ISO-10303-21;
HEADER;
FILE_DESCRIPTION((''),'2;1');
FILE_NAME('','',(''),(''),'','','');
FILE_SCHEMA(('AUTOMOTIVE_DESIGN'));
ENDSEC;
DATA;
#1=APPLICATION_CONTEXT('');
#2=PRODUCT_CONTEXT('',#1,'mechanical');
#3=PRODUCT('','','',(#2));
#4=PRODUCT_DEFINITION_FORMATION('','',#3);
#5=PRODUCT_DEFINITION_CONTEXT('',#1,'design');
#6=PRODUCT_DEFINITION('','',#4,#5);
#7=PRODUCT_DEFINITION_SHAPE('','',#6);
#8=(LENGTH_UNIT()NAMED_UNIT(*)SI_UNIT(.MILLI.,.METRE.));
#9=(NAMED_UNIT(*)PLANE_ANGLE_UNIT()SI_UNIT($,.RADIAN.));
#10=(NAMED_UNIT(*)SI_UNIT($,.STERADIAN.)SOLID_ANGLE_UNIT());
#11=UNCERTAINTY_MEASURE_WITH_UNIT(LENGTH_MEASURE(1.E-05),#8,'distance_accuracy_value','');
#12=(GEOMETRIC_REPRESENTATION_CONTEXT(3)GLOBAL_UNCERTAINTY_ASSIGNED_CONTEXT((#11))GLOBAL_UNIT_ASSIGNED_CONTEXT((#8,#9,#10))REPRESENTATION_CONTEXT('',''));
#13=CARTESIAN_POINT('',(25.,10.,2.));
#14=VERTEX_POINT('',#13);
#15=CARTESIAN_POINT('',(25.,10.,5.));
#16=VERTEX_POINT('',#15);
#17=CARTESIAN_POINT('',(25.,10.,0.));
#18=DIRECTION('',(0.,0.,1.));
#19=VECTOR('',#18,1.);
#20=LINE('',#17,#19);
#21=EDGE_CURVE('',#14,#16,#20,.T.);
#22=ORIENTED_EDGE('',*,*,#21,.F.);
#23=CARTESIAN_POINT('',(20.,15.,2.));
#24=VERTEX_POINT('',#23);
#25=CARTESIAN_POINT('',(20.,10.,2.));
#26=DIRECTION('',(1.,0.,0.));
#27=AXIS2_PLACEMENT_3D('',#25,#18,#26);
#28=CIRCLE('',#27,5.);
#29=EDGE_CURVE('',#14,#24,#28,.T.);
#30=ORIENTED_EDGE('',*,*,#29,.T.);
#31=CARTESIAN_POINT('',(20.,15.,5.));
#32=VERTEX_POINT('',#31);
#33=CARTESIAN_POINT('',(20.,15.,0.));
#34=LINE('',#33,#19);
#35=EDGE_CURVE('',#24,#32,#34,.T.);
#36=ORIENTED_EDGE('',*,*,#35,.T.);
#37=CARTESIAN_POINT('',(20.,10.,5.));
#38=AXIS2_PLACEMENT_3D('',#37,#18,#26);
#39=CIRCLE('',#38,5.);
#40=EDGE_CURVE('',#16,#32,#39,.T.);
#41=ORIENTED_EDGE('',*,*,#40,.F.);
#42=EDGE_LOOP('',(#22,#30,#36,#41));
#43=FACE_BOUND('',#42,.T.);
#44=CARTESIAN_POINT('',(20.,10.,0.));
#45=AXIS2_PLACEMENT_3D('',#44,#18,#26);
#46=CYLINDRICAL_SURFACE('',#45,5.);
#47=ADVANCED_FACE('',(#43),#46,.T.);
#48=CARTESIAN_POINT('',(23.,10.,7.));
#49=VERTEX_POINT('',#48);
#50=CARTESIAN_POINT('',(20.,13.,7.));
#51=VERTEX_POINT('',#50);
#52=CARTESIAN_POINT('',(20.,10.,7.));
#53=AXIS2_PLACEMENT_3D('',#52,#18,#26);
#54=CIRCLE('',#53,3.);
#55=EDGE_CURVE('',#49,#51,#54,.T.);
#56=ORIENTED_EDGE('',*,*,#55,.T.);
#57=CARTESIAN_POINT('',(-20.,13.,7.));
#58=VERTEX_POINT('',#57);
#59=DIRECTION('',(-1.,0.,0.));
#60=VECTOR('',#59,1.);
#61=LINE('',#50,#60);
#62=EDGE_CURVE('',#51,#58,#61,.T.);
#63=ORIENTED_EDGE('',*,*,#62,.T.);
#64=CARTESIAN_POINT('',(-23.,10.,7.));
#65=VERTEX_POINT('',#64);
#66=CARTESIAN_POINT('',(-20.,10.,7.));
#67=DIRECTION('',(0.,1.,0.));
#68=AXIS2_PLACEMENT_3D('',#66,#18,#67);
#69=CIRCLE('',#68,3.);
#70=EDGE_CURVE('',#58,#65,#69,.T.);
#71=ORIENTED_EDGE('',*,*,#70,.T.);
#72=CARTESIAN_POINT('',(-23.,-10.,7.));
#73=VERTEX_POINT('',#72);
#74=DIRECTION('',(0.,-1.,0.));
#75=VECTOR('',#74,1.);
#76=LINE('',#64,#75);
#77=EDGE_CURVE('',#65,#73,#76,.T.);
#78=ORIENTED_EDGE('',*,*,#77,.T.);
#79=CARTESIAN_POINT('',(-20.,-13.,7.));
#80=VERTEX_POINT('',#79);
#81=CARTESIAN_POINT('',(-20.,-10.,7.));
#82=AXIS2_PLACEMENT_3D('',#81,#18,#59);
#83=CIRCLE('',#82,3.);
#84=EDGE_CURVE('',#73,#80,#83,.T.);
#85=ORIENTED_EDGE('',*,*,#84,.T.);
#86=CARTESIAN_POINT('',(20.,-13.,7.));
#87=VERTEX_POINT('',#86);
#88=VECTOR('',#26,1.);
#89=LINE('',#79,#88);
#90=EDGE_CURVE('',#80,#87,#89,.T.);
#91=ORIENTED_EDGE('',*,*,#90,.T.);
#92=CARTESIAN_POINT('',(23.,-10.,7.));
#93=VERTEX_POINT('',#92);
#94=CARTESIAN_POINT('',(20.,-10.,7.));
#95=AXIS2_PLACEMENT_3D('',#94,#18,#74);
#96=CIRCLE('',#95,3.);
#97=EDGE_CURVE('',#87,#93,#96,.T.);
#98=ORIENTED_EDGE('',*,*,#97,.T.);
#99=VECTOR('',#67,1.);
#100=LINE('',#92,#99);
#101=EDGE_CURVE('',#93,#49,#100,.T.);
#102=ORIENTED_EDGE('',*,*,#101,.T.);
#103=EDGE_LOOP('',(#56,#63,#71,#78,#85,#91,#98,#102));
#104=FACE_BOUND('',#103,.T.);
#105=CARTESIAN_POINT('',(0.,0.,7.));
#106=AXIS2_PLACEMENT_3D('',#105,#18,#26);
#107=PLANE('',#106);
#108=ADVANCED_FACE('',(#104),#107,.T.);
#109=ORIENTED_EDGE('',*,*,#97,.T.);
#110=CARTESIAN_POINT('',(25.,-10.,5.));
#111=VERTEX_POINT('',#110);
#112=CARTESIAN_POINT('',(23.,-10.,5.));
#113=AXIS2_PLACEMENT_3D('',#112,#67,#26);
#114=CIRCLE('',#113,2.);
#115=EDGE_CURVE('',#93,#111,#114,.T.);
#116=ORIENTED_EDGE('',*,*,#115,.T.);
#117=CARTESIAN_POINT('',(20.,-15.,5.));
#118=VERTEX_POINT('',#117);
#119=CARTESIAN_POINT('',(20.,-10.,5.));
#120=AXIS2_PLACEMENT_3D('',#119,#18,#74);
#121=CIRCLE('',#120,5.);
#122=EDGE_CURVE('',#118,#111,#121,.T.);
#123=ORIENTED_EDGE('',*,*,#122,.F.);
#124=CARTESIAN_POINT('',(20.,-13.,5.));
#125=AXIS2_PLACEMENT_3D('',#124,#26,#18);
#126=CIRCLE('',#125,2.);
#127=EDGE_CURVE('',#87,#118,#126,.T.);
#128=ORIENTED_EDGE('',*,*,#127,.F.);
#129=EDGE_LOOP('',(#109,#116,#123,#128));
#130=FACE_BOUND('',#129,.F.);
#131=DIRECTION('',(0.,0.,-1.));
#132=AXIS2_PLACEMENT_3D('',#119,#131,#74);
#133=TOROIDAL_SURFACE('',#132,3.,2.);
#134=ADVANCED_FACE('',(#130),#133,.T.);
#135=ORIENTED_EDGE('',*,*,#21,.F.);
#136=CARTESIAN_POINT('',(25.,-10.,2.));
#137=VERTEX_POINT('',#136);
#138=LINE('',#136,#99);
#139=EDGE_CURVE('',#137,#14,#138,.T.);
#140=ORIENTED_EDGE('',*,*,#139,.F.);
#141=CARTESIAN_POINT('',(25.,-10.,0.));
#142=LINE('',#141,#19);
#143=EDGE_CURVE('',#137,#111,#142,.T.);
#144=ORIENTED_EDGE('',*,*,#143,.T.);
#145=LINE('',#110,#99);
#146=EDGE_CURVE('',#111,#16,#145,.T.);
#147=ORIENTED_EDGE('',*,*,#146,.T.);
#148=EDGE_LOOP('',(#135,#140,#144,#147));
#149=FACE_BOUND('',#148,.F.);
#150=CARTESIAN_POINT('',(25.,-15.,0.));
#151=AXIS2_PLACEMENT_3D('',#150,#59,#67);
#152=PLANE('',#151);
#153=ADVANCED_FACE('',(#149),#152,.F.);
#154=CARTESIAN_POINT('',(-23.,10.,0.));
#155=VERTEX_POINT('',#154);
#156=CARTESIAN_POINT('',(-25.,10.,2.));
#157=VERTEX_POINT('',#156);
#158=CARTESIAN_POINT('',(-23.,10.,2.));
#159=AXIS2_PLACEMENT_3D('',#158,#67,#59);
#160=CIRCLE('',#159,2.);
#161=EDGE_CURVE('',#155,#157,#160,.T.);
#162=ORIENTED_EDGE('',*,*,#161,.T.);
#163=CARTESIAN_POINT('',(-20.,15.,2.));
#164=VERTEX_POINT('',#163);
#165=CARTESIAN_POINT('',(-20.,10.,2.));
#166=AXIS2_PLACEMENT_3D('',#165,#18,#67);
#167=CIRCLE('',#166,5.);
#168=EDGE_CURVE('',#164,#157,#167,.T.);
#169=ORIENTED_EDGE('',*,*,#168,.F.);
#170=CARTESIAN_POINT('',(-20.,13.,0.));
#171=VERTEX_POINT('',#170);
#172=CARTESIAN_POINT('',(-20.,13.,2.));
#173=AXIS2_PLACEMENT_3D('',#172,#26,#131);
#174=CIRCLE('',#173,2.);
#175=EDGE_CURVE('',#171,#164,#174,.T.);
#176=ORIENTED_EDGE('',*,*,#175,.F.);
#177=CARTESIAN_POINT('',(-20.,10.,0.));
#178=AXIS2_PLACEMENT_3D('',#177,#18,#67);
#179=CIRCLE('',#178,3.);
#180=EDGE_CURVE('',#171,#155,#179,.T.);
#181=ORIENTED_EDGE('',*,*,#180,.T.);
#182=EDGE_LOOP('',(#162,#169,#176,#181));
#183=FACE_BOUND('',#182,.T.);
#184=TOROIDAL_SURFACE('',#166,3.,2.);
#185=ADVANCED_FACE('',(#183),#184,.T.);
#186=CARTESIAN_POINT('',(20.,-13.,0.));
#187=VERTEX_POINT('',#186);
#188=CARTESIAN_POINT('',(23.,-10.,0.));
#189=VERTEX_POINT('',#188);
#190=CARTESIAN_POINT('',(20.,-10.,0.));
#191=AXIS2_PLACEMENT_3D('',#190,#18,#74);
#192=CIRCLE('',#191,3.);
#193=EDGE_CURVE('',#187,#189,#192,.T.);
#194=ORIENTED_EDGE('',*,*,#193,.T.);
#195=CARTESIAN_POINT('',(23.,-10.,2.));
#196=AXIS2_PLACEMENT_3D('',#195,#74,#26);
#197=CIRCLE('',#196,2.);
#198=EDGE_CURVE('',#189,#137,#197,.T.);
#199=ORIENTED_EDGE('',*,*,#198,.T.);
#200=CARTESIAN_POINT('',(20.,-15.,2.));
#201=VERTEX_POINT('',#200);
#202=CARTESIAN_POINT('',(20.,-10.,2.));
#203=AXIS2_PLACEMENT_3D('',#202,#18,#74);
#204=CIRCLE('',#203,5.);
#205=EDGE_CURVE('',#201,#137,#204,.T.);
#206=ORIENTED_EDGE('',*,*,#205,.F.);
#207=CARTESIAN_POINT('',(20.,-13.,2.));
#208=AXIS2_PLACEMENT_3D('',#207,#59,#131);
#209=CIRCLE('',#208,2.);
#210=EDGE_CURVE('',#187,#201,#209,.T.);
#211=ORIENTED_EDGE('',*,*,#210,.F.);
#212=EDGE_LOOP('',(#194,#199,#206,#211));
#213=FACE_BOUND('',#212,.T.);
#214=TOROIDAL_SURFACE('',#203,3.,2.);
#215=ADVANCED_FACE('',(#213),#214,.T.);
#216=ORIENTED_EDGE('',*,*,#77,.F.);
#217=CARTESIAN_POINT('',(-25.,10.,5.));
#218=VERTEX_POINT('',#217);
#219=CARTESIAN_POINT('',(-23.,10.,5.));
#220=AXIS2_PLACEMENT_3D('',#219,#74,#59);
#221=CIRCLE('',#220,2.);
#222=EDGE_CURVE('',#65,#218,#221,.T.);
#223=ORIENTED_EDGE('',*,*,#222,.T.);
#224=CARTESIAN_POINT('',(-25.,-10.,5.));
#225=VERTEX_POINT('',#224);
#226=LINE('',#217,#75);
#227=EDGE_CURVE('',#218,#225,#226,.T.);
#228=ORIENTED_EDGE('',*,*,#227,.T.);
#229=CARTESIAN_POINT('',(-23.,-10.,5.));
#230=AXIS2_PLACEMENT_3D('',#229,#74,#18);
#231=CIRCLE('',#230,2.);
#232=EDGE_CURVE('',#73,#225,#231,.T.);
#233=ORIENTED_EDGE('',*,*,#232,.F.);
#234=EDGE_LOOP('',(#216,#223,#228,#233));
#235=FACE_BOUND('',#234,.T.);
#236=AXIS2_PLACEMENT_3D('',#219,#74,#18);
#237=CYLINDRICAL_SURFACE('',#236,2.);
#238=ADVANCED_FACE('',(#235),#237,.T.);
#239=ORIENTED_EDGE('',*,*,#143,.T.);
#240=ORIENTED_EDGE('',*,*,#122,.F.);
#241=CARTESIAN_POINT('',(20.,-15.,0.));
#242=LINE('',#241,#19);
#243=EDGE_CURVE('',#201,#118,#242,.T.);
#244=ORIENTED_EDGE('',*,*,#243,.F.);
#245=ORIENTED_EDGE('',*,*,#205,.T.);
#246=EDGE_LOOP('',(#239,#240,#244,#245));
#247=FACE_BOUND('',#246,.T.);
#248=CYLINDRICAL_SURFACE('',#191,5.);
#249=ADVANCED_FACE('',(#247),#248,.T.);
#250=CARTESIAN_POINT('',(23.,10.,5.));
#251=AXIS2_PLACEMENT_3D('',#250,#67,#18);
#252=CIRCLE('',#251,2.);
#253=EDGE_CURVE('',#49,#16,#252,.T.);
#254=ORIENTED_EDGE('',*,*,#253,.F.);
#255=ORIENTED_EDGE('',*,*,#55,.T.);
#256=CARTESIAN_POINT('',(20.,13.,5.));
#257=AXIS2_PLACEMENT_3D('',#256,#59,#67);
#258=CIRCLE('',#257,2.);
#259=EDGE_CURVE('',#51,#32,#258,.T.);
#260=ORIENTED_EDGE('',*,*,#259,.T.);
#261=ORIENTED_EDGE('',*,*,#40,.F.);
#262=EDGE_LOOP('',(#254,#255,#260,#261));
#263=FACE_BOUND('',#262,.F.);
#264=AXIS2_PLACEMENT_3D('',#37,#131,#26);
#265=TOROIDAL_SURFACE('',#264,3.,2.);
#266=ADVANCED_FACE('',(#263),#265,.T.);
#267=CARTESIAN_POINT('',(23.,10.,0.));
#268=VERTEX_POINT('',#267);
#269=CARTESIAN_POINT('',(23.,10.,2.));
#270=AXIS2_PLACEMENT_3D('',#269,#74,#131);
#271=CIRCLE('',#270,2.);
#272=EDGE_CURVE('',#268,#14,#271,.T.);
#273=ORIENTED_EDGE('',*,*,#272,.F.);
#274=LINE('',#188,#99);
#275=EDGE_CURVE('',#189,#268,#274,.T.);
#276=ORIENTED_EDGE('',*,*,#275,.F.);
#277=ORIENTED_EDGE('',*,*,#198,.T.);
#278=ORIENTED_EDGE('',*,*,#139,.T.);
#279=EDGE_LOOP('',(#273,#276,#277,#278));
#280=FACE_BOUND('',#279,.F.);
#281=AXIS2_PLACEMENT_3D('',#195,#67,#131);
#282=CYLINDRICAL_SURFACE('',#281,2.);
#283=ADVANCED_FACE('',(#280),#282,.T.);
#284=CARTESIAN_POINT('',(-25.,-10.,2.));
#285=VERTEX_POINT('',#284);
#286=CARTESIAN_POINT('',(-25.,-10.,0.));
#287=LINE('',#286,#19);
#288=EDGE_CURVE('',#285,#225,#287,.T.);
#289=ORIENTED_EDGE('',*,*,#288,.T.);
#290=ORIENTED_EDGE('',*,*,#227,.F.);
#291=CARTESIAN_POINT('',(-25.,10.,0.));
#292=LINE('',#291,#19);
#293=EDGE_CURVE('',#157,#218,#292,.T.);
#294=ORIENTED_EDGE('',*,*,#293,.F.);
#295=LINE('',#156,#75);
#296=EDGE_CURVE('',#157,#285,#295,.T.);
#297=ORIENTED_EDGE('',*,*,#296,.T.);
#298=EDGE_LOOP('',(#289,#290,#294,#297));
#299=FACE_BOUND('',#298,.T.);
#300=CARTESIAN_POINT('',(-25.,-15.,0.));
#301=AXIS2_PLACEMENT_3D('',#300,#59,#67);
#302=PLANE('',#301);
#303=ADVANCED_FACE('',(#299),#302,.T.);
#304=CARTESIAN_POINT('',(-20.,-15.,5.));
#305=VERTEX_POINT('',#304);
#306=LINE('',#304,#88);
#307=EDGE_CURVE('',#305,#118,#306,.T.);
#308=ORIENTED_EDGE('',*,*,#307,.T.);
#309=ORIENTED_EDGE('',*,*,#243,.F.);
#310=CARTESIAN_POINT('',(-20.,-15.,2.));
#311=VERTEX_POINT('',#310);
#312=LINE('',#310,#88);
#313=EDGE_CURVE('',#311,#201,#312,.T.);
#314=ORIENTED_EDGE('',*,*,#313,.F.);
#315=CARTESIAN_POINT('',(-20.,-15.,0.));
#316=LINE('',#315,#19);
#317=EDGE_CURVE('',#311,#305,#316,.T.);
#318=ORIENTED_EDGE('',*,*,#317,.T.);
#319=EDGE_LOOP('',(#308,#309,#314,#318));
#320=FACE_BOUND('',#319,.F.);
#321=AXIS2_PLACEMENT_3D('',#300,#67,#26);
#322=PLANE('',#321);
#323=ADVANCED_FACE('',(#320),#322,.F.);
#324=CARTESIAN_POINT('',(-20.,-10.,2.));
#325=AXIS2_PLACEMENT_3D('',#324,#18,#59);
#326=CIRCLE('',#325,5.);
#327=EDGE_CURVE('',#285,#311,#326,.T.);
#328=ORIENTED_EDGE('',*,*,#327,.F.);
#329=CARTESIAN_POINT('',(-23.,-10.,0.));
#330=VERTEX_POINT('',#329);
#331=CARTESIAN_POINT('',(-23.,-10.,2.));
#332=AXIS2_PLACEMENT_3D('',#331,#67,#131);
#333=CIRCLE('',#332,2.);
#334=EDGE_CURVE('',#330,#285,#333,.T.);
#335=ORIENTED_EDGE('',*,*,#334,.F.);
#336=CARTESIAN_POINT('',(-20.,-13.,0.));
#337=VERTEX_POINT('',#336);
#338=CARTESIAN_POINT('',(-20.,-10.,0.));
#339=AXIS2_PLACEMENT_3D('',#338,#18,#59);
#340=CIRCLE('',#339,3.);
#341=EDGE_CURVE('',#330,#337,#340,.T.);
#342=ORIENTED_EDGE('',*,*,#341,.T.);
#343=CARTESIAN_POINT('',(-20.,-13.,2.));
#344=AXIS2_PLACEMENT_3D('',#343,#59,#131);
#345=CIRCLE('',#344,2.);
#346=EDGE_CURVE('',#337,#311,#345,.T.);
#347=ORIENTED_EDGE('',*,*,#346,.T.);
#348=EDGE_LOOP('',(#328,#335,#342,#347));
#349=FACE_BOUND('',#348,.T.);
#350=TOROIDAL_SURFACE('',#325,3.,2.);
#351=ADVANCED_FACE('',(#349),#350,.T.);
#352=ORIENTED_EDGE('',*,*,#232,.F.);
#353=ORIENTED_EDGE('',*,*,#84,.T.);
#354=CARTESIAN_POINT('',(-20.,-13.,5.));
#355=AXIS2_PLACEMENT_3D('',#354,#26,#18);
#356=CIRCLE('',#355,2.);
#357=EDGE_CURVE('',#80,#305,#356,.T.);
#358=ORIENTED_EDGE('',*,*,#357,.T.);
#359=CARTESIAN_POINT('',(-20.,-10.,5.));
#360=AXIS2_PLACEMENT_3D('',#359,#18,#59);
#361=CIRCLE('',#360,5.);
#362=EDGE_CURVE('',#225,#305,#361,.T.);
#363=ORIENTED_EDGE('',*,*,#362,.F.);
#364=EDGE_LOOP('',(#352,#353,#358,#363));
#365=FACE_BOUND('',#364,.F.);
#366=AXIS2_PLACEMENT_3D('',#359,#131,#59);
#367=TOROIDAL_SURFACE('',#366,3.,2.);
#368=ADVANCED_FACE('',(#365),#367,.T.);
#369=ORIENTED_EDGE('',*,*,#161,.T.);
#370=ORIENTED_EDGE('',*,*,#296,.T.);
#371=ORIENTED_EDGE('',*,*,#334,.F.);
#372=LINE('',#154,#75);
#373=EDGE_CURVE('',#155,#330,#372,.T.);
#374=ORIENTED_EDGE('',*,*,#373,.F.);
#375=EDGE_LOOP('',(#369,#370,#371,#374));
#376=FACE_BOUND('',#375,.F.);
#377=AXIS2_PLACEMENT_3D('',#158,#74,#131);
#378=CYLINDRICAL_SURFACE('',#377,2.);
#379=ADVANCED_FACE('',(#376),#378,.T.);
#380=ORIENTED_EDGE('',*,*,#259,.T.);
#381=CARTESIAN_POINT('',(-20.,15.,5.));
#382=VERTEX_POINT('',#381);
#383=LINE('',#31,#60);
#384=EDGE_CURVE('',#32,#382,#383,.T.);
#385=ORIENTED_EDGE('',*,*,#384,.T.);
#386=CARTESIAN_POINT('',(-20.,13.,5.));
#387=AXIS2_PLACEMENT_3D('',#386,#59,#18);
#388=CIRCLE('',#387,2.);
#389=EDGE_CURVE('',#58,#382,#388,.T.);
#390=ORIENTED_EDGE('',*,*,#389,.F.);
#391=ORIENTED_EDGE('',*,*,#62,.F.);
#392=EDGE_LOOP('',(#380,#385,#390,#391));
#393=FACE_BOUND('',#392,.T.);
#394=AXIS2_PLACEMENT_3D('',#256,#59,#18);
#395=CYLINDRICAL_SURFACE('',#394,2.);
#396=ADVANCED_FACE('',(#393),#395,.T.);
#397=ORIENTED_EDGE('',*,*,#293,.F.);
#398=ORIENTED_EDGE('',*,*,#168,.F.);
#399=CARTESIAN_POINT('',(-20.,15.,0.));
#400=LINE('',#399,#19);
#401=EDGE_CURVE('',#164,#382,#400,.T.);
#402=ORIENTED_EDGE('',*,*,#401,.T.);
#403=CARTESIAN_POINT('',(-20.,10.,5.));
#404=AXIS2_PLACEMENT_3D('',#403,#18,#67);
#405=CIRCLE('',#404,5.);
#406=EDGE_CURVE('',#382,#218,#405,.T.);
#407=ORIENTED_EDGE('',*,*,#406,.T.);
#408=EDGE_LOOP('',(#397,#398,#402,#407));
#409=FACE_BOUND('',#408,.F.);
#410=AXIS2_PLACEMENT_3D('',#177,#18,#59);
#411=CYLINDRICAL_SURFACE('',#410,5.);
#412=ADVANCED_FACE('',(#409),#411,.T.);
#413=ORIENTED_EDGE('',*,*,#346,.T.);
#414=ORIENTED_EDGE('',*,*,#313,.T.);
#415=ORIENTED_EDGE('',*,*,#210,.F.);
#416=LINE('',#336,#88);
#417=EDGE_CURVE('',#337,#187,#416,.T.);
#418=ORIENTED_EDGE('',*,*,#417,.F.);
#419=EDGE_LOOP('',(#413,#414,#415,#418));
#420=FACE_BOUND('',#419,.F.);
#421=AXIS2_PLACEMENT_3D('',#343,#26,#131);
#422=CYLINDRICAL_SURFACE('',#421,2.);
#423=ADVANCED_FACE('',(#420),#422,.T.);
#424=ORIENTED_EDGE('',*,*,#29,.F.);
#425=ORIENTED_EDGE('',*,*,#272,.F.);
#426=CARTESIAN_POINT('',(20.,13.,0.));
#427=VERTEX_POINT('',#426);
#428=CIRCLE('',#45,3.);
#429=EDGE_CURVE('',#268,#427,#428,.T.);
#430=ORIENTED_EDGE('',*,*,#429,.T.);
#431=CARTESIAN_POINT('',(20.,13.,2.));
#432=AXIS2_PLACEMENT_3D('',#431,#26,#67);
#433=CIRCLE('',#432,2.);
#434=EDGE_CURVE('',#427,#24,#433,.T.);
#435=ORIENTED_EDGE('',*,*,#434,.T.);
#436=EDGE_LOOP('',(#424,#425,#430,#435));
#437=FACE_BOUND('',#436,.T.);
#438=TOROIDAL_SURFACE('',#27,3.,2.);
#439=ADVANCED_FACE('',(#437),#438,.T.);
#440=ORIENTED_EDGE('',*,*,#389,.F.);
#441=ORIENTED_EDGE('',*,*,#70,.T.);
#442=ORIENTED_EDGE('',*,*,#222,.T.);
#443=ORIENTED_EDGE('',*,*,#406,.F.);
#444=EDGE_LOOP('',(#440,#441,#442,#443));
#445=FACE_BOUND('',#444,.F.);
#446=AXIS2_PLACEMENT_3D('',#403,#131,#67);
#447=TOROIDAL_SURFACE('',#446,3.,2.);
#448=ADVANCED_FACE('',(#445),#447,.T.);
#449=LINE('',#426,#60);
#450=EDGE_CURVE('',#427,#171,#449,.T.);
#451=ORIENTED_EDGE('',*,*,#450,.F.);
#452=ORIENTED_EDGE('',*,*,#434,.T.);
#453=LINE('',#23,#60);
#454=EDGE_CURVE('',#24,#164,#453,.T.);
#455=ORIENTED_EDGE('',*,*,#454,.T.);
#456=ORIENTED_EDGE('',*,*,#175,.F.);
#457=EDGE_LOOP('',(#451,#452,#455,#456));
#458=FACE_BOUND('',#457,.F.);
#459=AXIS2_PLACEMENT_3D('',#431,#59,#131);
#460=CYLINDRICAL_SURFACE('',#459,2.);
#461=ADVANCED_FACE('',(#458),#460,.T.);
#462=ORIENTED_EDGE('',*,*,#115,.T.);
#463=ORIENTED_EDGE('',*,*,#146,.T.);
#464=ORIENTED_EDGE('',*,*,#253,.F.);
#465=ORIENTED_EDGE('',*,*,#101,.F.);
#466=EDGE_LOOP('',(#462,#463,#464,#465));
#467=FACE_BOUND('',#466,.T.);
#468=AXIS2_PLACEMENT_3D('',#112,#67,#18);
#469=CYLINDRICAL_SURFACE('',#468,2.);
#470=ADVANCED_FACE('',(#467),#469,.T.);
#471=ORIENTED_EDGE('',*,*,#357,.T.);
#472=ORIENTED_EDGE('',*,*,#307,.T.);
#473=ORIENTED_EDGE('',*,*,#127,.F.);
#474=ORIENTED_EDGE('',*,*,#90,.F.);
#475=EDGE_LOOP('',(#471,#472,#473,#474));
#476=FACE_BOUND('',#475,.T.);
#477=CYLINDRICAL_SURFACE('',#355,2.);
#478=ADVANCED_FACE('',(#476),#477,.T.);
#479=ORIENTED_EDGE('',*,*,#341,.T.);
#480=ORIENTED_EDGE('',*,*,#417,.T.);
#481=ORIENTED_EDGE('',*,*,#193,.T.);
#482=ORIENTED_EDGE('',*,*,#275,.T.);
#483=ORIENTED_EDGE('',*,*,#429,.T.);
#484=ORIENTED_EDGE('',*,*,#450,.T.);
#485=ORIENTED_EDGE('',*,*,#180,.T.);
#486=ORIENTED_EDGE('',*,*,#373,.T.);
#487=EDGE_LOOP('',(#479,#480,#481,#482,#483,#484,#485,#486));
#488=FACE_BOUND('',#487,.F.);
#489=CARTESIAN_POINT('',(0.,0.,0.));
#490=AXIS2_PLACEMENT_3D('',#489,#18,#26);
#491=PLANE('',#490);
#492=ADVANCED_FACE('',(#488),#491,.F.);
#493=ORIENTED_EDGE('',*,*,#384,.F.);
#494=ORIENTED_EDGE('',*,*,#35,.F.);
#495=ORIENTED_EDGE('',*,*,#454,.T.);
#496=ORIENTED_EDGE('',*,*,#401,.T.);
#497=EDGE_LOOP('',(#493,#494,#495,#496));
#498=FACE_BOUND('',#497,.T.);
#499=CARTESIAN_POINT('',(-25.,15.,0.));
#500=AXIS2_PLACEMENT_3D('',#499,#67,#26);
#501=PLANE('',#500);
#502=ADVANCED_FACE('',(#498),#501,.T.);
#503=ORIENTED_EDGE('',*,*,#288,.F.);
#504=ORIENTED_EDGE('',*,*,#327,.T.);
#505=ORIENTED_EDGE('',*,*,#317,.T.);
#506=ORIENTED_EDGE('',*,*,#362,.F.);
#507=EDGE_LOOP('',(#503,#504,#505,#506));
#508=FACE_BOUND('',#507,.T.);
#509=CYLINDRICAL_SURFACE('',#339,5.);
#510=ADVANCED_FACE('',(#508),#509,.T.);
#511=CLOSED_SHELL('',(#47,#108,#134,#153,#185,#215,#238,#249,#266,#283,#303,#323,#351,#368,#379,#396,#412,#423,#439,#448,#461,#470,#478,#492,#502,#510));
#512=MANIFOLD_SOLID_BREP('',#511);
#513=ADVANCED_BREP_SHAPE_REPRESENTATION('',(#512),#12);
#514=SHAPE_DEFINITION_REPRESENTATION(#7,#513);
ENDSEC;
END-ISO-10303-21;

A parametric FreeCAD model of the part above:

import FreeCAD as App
import Part
import Sketcher

V = App.Vector
Q = App.Units.Quantity


def edges_at(feature, points):
    """Names of the edges that pass closest to the given points."""
    edges = feature.Shape.Edges
    near = lambda p: min(range(len(edges)), key=lambda i: edges[i].distToShape(Part.Vertex(*p))[0])
    return sorted({f"Edge{near(p) + 1}" for p in points})

doc = App.newDocument("Part")
body = doc.addObject("PartDesign::Body", "Body")

# Sketch on XY plane
sketch1 = body.newObject("Sketcher::SketchObject", "Sketch")
sketch1.AttachmentSupport = (doc.getObject("XY_Plane"), [""])
sketch1.MapMode = "FlatFace"
sketch1.addGeometry([
    Part.LineSegment(V(-25, 15, 0), V(-25, -15, 0)),
    Part.LineSegment(V(-25, -15, 0), V(25, -15, 0)),
    Part.LineSegment(V(25, -15, 0), V(25, 15, 0)),
    Part.LineSegment(V(25, 15, 0), V(-25, 15, 0)),
], False)
sketch1.addConstraint([
    Sketcher.Constraint("Coincident", 0, 2, 1, 1),
    Sketcher.Constraint("Coincident", 1, 2, 2, 1),
    Sketcher.Constraint("Coincident", 2, 2, 3, 1),
    Sketcher.Constraint("Coincident", 3, 2, 0, 1),
    Sketcher.Constraint("Vertical", 0),
    Sketcher.Constraint("Horizontal", 1),
    Sketcher.Constraint("Vertical", 2),
    Sketcher.Constraint("Horizontal", 3),
    Sketcher.Constraint("Symmetric", 0, 2, 2, 2, -1, 1),
    Sketcher.Constraint("DistanceX", 1, 1, 1, 2, Q("50 mm")),
    Sketcher.Constraint("DistanceY", 0, 2, 0, 1, Q("30 mm")),
])
pad1 = body.newObject("PartDesign::Pad", "Pad")
pad1.Profile = sketch1
pad1.Length = 7
doc.recompute()

fillet = body.newObject("PartDesign::Fillet", "Fillet")
fillet.Base = (pad1, edges_at(pad1, [
    (25, -15, 3.5),
    (-25, -15, 3.5),
    (25, 15, 3.5),
    (-25, 15, 3.5),
]))
fillet.Radius = 5
doc.recompute()

fillet2 = body.newObject("PartDesign::Fillet", "Fillet001")
fillet2.Base = (fillet, edges_at(fillet, [(0, -15, 7), (0, -15, 0)]))
fillet2.Radius = 2

doc.recompute()
